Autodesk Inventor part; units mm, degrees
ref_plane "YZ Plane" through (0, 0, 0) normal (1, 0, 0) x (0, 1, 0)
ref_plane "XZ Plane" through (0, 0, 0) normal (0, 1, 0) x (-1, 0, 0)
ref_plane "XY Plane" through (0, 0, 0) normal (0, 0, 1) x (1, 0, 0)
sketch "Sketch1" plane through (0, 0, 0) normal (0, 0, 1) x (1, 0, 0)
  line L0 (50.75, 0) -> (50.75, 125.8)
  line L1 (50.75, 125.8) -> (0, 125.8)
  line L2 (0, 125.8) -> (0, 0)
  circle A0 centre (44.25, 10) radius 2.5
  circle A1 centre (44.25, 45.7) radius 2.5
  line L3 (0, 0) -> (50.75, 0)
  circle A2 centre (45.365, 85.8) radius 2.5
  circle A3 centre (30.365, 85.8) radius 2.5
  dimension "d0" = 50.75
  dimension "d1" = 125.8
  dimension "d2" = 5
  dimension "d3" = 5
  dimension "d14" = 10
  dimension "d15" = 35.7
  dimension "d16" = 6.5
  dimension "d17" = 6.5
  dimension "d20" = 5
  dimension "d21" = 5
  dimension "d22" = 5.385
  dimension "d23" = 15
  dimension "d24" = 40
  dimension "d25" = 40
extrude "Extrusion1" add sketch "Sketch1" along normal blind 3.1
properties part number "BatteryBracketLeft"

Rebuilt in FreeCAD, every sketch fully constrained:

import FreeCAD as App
import Part
import Sketcher

V = App.Vector


def add_polygon(sketch, points):
    """Adds a closed chain of lines whose ends are joined by coincident constraints."""
    first, n = sketch.GeometryCount, len(points)
    for a, b in zip(points, points[1:] + points[:1]):
        sketch.addGeometry(Part.LineSegment(App.Vector(*a, 0), App.Vector(*b, 0)), False)
    for i in range(n):
        sketch.addConstraint(Sketcher.Constraint("Coincident", first + i, 2, first + (i + 1) % n, 1))

doc = App.newDocument("Part")
body = doc.addObject("PartDesign::Body", "Body")

# Sketch on XY plane
sketch1 = body.newObject("Sketcher::SketchObject", "Sketch")
sketch1.AttachmentSupport = (doc.getObject("XY_Plane"), [""])
sketch1.MapMode = "FlatFace"
add_polygon(sketch1, [(0, 0), (50.75, 0), (50.75, 125.8), (0, 125.8)])  # lines 0-3
sketch1.addGeometry(Part.Circle(V(44.25, 10, 0), V(0, 0, 1), 2.5), False)  # 4
sketch1.addGeometry(Part.Circle(V(44.25, 45.7, 0), V(0, 0, 1), 2.5), False)  # 5
sketch1.addGeometry(Part.Circle(V(30.365, 85.8, 0), V(0, 0, 1), 2.5), False)  # 6
sketch1.addGeometry(Part.Circle(V(45.365, 85.8, 0), V(0, 0, 1), 2.5), False)  # 7
sketch1.addConstraint([
    Sketcher.Constraint("Horizontal", 0),
    Sketcher.Constraint("Vertical", 1),
    Sketcher.Constraint("Horizontal", 2),
    Sketcher.Constraint("Vertical", 3),
    Sketcher.Constraint("Coincident", 3, 2, -1, 1),
    Sketcher.Constraint("Equal", 4, 5),
    Sketcher.Constraint("Equal", 5, 6),
    Sketcher.Constraint("Equal", 6, 7),
    Sketcher.Constraint("Horizontal", 6, 3, 7, 3),
    Sketcher.Constraint("Vertical", 4, 3, 5, 3),
    Sketcher.Constraint("Diameter", 4, 5.0),
    Sketcher.Constraint("DistanceY", 1, 1, 1, 2, 125.8),
    Sketcher.Constraint("DistanceY", -1, 1, 4, 3, 10.0),
    Sketcher.Constraint("DistanceX", 6, 3, 7, 3, 15.0),
    Sketcher.Constraint("DistanceY", 7, 3, 1, 2, 40.0),
    Sketcher.Constraint("DistanceX", 0, 1, 0, 2, 50.75),
    Sketcher.Constraint("DistanceY", 4, 3, 5, 3, 35.7),
    Sketcher.Constraint("DistanceX", 4, 3, 0, 2, 6.5),
    Sketcher.Constraint("DistanceX", 7, 3, 0, 2, 5.385),
])
pad1 = body.newObject("PartDesign::Pad", "Pad")
pad1.Profile = sketch1
pad1.Length = 3.1

doc.recompute()
